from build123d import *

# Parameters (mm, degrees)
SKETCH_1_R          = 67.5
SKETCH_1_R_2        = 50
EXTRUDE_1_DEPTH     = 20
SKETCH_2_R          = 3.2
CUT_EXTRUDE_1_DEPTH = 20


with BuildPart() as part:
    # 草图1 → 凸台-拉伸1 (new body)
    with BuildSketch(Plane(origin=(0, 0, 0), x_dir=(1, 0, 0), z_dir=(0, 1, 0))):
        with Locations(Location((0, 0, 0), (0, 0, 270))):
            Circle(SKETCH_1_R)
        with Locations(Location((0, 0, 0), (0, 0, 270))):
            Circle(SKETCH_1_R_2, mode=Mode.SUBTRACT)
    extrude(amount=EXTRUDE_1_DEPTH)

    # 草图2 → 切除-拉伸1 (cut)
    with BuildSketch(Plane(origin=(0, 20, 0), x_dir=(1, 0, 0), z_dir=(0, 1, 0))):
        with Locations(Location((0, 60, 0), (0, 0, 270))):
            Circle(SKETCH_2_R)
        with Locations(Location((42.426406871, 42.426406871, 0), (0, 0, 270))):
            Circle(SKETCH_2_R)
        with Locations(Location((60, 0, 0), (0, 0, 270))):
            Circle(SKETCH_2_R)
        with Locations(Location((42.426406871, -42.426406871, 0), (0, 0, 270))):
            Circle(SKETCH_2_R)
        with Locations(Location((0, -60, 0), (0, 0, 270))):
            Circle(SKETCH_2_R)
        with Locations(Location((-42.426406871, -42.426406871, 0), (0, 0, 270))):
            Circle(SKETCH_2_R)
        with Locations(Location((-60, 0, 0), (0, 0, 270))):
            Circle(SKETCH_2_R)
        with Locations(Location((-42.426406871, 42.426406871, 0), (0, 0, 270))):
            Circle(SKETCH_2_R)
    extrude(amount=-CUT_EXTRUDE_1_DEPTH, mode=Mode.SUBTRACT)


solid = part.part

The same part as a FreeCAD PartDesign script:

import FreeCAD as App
import Part
import Sketcher
from FreeCAD import Vector

doc = App.newDocument("Part")
body = doc.addObject("PartDesign::Body", "Body")

# Sketch on XZ plane
sketch1 = body.newObject("Sketcher::SketchObject", "Sketch")
sketch1.AttachmentSupport = (doc.getObject("XZ_Plane"), [""])
sketch1.MapMode = "FlatFace"
sketch1.addGeometry([
    Part.Circle(Vector(0, 0, 0), Vector(0, 0, 1), 68),
    Part.Circle(Vector(0, 0, 0), Vector(0, 0, 1), 50),
], False)
sketch1.addConstraint([
    Sketcher.Constraint("Coincident", 0, 3, -1, 1),
    Sketcher.Constraint("Coincident", 1, 3, -1, 1),
    Sketcher.Constraint("Diameter", 0, 135.0),
    Sketcher.Constraint("Diameter", 1, 100.0),
])
pad1 = body.newObject("PartDesign::Pad", "Pad")
pad1.Profile = sketch1
pad1.Length = 20
pad1.Reversed = True

# Sketch on XZ plane
sketch2 = body.newObject("Sketcher::SketchObject", "Sketch001")
sketch2.AttachmentSupport = (doc.getObject("XZ_Plane"), [""])
sketch2.MapMode = "FlatFace"
sketch2.AttachmentOffset = App.Placement(Vector(0, 0, -20), App.Rotation())
sketch2.addGeometry([
    Part.Circle(Vector(0, -60, 0), Vector(0, 0, 1), 3.2),  # 0
    Part.Circle(Vector(42.4, -42.4, 0), Vector(0, 0, 1), 3.2),  # 1
    Part.Circle(Vector(60, 0, 0), Vector(0, 0, 1), 3.2),  # 2
    Part.Circle(Vector(42.4, 42.4, 0), Vector(0, 0, 1), 3.2),  # 3
    Part.Circle(Vector(0, 60, 0), Vector(0, 0, 1), 3.2),  # 4
    Part.Circle(Vector(-42.4, 42.4, 0), Vector(0, 0, 1), 3.2),  # 5
    Part.Circle(Vector(-60, 0, 0), Vector(0, 0, 1), 3.2),  # 6
    Part.Circle(Vector(-42.4, -42.4, 0), Vector(0, 0, 1), 3.2),  # 7
], False)
sketch2.addConstraint([
    Sketcher.Constraint("Equal", 0, 1),
    Sketcher.Constraint("Equal", 1, 2),
    Sketcher.Constraint("Equal", 2, 3),
    Sketcher.Constraint("Equal", 3, 4),
    Sketcher.Constraint("Equal", 4, 5),
    Sketcher.Constraint("Equal", 5, 6),
    Sketcher.Constraint("Equal", 6, 7),
    Sketcher.Constraint("Symmetric", 0, 3, 4, 3, -1, 1),
    Sketcher.Constraint("Symmetric", 1, 3, 5, 3, -1, 1),
    Sketcher.Constraint("Symmetric", 2, 3, 6, 3, -1, 1),
    Sketcher.Constraint("Symmetric", 3, 3, 7, 3, -1, 1),
    Sketcher.Constraint("Symmetric", 3, 3, 5, 3, -2),
    Sketcher.Constraint("PointOnObject", 0, 3, -2),
    Sketcher.Constraint("PointOnObject", 2, 3, -1),
    Sketcher.Constraint("Diameter", 0, 6.4),
    Sketcher.Constraint("DistanceY", 0, 3, -1, 1, 60.0),
    Sketcher.Constraint("DistanceX", -1, 1, 2, 3, 60.0),
    Sketcher.Constraint("DistanceX", -1, 1, 1, 3, 42.426407),
    Sketcher.Constraint("DistanceY", 1, 3, -1, 1, 42.426407),
])
pocket1 = body.newObject("PartDesign::Pocket", "Pocket")
pocket1.Profile = sketch2
pocket1.Length = 20
pocket1.Reversed = True

doc.recompute()
